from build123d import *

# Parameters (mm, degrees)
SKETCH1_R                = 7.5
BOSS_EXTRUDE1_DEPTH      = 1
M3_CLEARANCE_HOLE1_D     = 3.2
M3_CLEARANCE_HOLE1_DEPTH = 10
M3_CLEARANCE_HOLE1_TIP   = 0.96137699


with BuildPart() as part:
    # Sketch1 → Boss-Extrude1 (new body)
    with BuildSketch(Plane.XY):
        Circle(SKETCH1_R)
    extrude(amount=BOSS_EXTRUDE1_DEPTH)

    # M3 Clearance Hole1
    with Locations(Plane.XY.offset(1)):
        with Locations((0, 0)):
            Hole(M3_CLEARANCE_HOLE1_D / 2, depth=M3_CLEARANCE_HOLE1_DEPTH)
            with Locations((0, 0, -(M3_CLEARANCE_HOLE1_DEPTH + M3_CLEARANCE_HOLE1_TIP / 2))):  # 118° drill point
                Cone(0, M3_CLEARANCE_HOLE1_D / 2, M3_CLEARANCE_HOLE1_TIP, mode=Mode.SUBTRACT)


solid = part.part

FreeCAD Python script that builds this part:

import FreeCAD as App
import Part
import Sketcher

V = App.Vector
Q = App.Units.Quantity

doc = App.newDocument("Part")
body = doc.addObject("PartDesign::Body", "Body")

# Sketch on XY plane
sketch1 = body.newObject("Sketcher::SketchObject", "Sketch")
sketch1.AttachmentSupport = (doc.getObject("XY_Plane"), [""])
sketch1.MapMode = "FlatFace"
sketch1.addGeometry(Part.Circle(V(0, 0, 0), V(0, 0, 1), 8), False)
sketch1.addConstraint([
    Sketcher.Constraint("Coincident", 0, 3, -1, 1),
    Sketcher.Constraint("Diameter", 0, Q("15 mm")),
])
pad1 = body.newObject("PartDesign::Pad", "Pad")
pad1.Profile = sketch1
pad1.Length = 1

# Sketch on XY plane
sketch2 = body.newObject("Sketcher::SketchObject", "Sketch001")
sketch2.AttachmentSupport = (doc.getObject("XY_Plane"), [""])
sketch2.MapMode = "FlatFace"
sketch2.AttachmentOffset = App.Placement(V(0, 0, 1), App.Rotation())
sketch2.addGeometry(Part.Circle(V(0, 0, 0), V(0, 0, 1), 1.6), False)
sketch2.addConstraint([
    Sketcher.Constraint("Coincident", 0, 3, -1, 1),
    Sketcher.Constraint("Diameter", 0, Q("3.2 mm")),
])
doc.recompute()
hole = body.newObject("PartDesign::Hole", "Hole")
hole.Profile = sketch2
hole.ThreadType = "None"
hole.Diameter = 3.2
hole.DepthType = "Dimension"
hole.Depth = 10
hole.DrillPoint = "Angled"
hole.DrillPointAngle = 118

doc.recompute()
